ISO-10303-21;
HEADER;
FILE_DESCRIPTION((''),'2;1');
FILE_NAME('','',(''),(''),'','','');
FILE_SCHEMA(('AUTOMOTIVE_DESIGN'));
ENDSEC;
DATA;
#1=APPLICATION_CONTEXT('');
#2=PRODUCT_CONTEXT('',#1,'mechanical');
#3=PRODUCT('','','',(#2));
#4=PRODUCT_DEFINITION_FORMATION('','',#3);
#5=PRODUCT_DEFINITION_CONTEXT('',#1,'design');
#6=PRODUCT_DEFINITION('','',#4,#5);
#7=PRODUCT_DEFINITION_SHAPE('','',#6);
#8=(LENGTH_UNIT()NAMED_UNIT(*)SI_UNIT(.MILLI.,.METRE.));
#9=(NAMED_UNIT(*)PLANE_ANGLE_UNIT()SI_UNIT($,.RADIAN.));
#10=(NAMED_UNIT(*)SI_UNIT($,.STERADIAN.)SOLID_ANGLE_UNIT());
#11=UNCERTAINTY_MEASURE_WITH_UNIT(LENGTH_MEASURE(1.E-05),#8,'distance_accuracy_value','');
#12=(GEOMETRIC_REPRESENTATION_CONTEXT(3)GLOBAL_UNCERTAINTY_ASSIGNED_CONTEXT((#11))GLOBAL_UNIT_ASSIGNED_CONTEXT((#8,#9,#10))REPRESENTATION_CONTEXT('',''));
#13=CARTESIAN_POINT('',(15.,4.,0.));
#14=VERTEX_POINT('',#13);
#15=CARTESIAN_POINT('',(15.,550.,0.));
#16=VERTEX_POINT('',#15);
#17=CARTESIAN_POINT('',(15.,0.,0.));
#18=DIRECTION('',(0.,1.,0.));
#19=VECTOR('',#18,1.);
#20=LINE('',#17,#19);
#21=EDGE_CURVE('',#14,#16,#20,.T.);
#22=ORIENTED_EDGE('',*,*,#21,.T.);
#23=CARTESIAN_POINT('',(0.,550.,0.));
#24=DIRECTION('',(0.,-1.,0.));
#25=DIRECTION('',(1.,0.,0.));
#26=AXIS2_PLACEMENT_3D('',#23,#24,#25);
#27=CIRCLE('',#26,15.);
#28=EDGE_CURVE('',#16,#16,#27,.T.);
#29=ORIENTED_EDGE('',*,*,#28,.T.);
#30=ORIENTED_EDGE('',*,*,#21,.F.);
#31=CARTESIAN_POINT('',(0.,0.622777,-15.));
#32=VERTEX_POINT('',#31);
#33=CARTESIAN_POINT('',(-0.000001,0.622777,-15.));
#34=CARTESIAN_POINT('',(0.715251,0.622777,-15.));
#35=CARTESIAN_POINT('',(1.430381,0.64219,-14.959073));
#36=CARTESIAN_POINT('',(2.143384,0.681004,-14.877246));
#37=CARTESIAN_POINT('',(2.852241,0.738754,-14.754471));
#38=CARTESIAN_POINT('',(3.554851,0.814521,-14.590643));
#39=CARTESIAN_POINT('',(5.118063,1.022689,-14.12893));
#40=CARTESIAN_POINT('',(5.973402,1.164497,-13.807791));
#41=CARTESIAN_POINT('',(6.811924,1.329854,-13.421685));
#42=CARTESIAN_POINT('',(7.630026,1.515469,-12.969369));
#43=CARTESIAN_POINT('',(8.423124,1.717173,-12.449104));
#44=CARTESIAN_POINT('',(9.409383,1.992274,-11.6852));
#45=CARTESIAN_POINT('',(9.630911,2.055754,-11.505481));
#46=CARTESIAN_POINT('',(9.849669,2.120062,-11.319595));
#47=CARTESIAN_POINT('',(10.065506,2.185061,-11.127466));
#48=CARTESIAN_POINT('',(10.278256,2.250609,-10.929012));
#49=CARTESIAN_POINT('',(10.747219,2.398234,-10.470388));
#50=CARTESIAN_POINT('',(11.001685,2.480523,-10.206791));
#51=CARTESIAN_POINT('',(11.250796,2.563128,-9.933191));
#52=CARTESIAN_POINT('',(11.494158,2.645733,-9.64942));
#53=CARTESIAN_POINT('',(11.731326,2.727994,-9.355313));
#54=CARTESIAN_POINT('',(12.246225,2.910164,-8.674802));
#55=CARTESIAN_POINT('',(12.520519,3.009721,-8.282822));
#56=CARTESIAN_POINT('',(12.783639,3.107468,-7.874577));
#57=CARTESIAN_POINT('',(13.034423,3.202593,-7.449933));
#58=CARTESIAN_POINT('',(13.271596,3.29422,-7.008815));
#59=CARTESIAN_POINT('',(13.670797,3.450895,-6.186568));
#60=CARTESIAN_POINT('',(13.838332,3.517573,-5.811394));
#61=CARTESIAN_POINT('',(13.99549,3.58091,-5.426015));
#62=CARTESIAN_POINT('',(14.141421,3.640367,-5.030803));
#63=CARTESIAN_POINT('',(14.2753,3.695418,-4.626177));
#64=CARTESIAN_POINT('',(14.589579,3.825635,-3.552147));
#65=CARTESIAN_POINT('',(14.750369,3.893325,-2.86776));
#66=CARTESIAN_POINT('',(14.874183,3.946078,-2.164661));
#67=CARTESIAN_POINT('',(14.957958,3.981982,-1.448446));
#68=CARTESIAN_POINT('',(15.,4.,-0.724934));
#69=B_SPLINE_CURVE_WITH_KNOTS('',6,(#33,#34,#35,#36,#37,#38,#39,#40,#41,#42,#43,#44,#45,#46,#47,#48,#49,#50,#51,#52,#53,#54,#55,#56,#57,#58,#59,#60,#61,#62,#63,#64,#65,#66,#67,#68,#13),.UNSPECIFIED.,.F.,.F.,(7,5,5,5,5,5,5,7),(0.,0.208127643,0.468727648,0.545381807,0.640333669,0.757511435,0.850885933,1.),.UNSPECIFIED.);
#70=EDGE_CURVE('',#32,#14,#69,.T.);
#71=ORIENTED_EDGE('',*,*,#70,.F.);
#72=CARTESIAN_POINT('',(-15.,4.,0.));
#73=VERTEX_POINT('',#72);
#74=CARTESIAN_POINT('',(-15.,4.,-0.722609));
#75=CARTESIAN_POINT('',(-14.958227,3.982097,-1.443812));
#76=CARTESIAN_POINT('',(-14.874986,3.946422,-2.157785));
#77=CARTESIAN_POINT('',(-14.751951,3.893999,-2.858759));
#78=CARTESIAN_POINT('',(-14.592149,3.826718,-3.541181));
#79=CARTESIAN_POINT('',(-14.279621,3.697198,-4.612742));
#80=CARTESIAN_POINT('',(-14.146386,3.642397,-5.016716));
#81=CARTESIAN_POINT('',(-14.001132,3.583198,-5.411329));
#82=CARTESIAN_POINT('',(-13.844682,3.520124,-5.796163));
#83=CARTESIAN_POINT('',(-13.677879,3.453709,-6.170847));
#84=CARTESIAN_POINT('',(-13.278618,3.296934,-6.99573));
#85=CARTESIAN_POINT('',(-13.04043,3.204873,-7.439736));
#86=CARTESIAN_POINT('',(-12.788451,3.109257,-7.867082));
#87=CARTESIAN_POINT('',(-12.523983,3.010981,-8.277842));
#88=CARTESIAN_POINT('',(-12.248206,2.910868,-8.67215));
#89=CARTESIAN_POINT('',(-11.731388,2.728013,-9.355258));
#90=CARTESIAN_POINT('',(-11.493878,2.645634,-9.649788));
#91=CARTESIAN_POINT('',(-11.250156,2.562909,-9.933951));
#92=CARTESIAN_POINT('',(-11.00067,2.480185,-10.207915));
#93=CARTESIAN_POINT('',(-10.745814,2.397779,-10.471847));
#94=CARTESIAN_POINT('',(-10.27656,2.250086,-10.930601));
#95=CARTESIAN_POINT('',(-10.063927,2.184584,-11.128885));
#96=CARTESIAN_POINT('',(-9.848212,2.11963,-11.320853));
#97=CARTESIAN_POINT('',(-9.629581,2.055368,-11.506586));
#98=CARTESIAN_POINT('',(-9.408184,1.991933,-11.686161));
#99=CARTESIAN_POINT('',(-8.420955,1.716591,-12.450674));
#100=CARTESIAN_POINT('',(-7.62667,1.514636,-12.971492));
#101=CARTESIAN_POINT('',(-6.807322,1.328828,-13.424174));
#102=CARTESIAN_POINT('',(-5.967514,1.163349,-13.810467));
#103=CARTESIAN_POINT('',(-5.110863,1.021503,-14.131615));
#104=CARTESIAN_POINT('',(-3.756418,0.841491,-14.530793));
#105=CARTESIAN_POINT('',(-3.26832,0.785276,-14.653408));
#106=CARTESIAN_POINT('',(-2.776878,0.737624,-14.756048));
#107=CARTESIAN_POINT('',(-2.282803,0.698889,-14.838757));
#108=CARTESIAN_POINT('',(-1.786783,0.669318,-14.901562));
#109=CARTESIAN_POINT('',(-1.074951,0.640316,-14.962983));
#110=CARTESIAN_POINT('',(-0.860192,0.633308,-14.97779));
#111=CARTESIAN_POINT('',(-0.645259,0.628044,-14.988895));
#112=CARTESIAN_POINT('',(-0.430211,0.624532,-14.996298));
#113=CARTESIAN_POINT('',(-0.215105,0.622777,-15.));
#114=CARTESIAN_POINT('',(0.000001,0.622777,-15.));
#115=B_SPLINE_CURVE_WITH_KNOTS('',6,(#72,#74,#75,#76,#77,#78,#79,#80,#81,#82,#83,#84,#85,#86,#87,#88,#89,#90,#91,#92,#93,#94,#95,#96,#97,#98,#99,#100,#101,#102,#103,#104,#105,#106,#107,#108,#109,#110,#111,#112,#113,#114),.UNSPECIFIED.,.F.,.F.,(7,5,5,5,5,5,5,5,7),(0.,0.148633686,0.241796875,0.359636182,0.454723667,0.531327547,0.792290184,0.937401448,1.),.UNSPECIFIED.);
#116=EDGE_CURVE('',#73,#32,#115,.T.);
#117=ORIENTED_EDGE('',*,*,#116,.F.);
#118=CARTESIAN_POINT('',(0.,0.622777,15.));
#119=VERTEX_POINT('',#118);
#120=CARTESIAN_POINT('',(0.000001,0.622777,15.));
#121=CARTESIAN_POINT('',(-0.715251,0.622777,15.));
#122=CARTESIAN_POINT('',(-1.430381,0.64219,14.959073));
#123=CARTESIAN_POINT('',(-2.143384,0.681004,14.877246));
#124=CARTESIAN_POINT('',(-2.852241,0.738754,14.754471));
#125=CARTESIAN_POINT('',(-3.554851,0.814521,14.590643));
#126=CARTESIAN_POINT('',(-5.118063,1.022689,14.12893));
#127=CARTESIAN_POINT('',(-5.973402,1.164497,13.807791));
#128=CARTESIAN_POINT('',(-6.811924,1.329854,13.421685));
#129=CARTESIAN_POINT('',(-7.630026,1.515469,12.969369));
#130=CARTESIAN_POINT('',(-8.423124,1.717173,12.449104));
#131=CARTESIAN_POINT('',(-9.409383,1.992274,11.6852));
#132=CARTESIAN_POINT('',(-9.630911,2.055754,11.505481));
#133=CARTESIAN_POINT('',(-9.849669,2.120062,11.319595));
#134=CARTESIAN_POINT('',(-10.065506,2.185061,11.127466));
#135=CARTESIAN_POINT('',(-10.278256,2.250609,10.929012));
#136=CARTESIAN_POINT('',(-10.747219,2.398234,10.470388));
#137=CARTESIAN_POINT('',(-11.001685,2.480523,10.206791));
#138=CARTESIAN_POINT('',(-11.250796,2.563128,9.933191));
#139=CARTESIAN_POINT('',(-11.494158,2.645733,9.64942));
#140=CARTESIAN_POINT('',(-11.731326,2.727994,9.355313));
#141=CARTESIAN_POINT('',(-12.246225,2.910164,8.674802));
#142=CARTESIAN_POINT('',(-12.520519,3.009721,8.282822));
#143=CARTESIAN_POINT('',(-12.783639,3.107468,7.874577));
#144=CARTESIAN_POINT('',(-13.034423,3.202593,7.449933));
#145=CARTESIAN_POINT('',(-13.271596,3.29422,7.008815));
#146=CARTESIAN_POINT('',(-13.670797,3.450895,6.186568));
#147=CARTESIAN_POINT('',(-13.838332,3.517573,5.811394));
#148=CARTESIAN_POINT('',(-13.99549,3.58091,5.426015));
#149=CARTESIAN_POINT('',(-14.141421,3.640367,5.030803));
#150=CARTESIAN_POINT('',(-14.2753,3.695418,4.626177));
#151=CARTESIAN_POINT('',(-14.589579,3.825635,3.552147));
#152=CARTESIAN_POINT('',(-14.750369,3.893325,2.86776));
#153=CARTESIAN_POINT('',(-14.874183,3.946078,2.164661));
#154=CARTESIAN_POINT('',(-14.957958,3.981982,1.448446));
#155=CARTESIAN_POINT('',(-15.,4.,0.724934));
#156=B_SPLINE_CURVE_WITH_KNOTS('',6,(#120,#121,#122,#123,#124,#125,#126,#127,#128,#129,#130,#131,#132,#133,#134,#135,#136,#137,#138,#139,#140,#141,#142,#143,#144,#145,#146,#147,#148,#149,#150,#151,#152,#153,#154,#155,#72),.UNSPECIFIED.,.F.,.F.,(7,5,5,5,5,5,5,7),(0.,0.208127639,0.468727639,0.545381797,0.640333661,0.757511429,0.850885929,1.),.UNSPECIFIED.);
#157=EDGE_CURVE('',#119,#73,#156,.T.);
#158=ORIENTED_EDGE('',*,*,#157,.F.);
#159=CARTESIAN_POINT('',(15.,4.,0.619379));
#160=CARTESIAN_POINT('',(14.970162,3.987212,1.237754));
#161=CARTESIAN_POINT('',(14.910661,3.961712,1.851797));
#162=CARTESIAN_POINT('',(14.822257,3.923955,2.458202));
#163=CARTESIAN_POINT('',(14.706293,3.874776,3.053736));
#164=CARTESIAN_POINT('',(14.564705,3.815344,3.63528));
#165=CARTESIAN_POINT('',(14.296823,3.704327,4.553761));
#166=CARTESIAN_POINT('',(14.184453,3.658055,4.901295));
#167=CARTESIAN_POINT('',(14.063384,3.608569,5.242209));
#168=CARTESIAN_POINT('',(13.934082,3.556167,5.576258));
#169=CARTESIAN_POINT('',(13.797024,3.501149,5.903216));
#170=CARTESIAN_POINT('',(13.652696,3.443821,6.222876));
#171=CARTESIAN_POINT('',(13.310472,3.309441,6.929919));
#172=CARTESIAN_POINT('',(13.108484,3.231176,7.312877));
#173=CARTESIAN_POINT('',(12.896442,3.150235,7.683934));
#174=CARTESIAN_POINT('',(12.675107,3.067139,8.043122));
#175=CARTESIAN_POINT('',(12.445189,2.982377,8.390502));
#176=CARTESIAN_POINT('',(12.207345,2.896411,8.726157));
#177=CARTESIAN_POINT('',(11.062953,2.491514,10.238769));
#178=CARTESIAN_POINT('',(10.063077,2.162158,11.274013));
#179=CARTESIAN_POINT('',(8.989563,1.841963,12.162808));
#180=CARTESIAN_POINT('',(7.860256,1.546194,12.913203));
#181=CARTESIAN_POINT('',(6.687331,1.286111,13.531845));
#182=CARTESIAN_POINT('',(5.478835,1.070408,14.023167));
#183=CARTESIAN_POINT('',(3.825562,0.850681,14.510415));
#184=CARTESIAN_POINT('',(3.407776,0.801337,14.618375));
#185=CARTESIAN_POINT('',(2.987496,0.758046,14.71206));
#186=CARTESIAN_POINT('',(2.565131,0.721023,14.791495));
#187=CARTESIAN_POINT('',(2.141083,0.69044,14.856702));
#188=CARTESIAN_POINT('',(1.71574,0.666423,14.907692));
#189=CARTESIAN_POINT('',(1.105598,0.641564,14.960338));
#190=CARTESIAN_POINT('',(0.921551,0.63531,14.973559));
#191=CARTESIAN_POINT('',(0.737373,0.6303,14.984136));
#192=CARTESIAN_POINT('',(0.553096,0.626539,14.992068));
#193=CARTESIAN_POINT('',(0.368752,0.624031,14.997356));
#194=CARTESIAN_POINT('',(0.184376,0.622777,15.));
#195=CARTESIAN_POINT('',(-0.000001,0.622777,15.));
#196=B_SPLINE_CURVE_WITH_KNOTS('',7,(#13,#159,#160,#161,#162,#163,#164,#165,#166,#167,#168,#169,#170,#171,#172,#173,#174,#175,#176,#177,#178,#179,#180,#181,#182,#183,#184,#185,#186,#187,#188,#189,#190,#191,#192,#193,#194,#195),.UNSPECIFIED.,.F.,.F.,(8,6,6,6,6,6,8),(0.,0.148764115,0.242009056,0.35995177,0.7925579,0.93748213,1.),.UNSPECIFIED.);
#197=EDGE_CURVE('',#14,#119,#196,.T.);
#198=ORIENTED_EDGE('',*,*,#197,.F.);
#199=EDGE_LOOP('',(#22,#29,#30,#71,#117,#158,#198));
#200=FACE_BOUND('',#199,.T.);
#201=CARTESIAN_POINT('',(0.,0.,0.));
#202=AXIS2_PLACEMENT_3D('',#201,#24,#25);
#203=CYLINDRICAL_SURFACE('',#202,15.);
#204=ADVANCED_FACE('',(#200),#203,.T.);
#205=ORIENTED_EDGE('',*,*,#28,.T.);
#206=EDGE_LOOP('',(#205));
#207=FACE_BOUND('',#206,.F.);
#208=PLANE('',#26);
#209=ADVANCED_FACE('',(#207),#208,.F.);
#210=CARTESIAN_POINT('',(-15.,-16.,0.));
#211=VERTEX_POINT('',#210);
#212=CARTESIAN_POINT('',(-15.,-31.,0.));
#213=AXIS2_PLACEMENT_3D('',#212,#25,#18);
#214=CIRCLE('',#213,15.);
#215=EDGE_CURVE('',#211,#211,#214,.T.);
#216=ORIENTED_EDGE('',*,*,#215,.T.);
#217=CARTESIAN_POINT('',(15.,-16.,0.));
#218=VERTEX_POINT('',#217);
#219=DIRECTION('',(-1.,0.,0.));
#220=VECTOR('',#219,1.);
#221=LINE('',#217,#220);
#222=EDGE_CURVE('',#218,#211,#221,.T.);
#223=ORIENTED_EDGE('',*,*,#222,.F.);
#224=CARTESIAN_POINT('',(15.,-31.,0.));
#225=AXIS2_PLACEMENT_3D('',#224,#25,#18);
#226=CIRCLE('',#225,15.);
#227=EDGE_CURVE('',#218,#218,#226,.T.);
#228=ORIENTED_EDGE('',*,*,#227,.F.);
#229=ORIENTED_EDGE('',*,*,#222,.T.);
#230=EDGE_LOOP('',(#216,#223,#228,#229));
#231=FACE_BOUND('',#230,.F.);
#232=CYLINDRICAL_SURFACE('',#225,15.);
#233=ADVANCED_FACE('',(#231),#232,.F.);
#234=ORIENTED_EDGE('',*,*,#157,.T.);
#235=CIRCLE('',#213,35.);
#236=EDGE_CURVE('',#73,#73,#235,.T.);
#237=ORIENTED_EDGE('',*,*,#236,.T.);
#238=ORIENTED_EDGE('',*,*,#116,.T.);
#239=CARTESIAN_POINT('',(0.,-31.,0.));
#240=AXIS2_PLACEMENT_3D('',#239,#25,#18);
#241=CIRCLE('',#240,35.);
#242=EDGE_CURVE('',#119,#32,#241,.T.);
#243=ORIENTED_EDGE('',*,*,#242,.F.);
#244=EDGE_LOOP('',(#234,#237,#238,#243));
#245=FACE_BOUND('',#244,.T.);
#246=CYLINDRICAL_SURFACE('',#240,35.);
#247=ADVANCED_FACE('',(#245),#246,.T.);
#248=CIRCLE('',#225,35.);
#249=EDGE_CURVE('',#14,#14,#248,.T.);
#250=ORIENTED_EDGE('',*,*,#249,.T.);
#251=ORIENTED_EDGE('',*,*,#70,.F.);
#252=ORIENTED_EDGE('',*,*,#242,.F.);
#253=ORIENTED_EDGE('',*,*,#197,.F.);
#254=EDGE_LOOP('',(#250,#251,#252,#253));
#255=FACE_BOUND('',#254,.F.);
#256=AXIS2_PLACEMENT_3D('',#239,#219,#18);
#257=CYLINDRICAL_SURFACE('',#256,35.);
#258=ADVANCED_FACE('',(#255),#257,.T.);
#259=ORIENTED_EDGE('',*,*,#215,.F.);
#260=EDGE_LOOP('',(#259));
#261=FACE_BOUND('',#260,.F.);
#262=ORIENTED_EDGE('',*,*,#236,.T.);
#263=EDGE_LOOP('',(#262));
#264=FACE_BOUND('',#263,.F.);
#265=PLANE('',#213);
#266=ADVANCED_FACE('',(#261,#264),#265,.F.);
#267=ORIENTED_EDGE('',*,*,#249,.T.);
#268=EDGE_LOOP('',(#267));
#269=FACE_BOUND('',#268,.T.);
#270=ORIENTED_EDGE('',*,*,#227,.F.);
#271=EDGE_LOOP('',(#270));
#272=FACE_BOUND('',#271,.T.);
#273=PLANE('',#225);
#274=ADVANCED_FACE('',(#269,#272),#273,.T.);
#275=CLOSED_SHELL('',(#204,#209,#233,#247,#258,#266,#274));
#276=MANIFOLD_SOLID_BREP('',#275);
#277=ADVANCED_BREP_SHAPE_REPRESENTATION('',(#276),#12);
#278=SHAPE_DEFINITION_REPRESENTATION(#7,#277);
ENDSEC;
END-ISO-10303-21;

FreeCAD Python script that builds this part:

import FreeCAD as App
import Part
import Sketcher
from FreeCAD import Vector
Q = App.Units.Quantity

doc = App.newDocument("Part")
params = doc.addObject("Spreadsheet::Sheet", "Params")
for row, (alias, value) in enumerate([
    ("sketch1_diameter", "30 mm"),
    ("pad1_length", "550 mm"),
    ("sketch2_diameter", "70 mm"),
    ("pad2_length", "15 mm"),
    ("pad2_length2", "15 mm"),
    ("sketch3_diameter", "30 mm"),
], start=1):
    params.set(f"A{row}", alias)
    params.set(f"B{row}", "=" + value)
    params.setAlias(f"B{row}", alias)

body = doc.addObject("PartDesign::Body", "Body")

# Sketch on XZ plane
sketch1 = body.newObject("Sketcher::SketchObject", "Sketch")
sketch1.AttachmentSupport = (doc.getObject("XZ_Plane"), [""])
sketch1.MapMode = "FlatFace"
sketch1.addGeometry(Part.Circle(Vector(0, 0, 0), Vector(0, 0, 1), 15), False)
sketch1.addConstraint([
    Sketcher.Constraint("Coincident", 0, 3, -1, 1),
    Sketcher.Constraint("Diameter", 0, Q("30 mm")),
])
sketch1.setExpression("Constraints[1]", "Params.sketch1_diameter")
pad1 = body.newObject("PartDesign::Pad", "Pad")
pad1.Profile = sketch1
pad1.setExpression("Length", "Params.pad1_length")
pad1.Reversed = True

# Sketch on YZ plane
sketch2 = body.newObject("Sketcher::SketchObject", "Sketch001")
sketch2.AttachmentSupport = (doc.getObject("YZ_Plane"), [""])
sketch2.MapMode = "FlatFace"
sketch2.addGeometry(Part.Circle(Vector(-31, 0, 0), Vector(0, 0, 1), 35), False)
sketch2.addConstraint([
    Sketcher.Constraint("PointOnObject", 0, 3, -1),
    Sketcher.Constraint("Diameter", 0, Q("70 mm")),
    Sketcher.Constraint("DistanceX", 0, 3, -1, 1, Q("31 mm")),
])
sketch2.setExpression("Constraints[1]", "Params.sketch2_diameter")
pad2 = body.newObject("PartDesign::Pad", "Pad001")
pad2.Profile = sketch2
pad2.Type = "TwoLengths"
pad2.setExpression("Length", "Params.pad2_length")
pad2.setExpression("Length2", "Params.pad2_length2")

# Sketch on YZ plane
sketch3 = body.newObject("Sketcher::SketchObject", "Sketch002")
sketch3.AttachmentSupport = (doc.getObject("YZ_Plane"), [""])
sketch3.MapMode = "FlatFace"
sketch3.AttachmentOffset = App.Placement(Vector(0, 0, 15), App.Rotation())
sketch3.addGeometry(Part.Circle(Vector(-31, 0, 0), Vector(0, 0, 1), 15), False)
sketch3.addConstraint([
    Sketcher.Constraint("PointOnObject", 0, 3, -1),
    Sketcher.Constraint("Diameter", 0, Q("30 mm")),
    Sketcher.Constraint("DistanceX", 0, 3, -1, 1, Q("31 mm")),
])
sketch3.setExpression("Constraints[1]", "Params.sketch3_diameter")
pocket1 = body.newObject("PartDesign::Pocket", "Pocket")
pocket1.Profile = sketch3
pocket1.Type = "ThroughAll"

doc.recompute()
